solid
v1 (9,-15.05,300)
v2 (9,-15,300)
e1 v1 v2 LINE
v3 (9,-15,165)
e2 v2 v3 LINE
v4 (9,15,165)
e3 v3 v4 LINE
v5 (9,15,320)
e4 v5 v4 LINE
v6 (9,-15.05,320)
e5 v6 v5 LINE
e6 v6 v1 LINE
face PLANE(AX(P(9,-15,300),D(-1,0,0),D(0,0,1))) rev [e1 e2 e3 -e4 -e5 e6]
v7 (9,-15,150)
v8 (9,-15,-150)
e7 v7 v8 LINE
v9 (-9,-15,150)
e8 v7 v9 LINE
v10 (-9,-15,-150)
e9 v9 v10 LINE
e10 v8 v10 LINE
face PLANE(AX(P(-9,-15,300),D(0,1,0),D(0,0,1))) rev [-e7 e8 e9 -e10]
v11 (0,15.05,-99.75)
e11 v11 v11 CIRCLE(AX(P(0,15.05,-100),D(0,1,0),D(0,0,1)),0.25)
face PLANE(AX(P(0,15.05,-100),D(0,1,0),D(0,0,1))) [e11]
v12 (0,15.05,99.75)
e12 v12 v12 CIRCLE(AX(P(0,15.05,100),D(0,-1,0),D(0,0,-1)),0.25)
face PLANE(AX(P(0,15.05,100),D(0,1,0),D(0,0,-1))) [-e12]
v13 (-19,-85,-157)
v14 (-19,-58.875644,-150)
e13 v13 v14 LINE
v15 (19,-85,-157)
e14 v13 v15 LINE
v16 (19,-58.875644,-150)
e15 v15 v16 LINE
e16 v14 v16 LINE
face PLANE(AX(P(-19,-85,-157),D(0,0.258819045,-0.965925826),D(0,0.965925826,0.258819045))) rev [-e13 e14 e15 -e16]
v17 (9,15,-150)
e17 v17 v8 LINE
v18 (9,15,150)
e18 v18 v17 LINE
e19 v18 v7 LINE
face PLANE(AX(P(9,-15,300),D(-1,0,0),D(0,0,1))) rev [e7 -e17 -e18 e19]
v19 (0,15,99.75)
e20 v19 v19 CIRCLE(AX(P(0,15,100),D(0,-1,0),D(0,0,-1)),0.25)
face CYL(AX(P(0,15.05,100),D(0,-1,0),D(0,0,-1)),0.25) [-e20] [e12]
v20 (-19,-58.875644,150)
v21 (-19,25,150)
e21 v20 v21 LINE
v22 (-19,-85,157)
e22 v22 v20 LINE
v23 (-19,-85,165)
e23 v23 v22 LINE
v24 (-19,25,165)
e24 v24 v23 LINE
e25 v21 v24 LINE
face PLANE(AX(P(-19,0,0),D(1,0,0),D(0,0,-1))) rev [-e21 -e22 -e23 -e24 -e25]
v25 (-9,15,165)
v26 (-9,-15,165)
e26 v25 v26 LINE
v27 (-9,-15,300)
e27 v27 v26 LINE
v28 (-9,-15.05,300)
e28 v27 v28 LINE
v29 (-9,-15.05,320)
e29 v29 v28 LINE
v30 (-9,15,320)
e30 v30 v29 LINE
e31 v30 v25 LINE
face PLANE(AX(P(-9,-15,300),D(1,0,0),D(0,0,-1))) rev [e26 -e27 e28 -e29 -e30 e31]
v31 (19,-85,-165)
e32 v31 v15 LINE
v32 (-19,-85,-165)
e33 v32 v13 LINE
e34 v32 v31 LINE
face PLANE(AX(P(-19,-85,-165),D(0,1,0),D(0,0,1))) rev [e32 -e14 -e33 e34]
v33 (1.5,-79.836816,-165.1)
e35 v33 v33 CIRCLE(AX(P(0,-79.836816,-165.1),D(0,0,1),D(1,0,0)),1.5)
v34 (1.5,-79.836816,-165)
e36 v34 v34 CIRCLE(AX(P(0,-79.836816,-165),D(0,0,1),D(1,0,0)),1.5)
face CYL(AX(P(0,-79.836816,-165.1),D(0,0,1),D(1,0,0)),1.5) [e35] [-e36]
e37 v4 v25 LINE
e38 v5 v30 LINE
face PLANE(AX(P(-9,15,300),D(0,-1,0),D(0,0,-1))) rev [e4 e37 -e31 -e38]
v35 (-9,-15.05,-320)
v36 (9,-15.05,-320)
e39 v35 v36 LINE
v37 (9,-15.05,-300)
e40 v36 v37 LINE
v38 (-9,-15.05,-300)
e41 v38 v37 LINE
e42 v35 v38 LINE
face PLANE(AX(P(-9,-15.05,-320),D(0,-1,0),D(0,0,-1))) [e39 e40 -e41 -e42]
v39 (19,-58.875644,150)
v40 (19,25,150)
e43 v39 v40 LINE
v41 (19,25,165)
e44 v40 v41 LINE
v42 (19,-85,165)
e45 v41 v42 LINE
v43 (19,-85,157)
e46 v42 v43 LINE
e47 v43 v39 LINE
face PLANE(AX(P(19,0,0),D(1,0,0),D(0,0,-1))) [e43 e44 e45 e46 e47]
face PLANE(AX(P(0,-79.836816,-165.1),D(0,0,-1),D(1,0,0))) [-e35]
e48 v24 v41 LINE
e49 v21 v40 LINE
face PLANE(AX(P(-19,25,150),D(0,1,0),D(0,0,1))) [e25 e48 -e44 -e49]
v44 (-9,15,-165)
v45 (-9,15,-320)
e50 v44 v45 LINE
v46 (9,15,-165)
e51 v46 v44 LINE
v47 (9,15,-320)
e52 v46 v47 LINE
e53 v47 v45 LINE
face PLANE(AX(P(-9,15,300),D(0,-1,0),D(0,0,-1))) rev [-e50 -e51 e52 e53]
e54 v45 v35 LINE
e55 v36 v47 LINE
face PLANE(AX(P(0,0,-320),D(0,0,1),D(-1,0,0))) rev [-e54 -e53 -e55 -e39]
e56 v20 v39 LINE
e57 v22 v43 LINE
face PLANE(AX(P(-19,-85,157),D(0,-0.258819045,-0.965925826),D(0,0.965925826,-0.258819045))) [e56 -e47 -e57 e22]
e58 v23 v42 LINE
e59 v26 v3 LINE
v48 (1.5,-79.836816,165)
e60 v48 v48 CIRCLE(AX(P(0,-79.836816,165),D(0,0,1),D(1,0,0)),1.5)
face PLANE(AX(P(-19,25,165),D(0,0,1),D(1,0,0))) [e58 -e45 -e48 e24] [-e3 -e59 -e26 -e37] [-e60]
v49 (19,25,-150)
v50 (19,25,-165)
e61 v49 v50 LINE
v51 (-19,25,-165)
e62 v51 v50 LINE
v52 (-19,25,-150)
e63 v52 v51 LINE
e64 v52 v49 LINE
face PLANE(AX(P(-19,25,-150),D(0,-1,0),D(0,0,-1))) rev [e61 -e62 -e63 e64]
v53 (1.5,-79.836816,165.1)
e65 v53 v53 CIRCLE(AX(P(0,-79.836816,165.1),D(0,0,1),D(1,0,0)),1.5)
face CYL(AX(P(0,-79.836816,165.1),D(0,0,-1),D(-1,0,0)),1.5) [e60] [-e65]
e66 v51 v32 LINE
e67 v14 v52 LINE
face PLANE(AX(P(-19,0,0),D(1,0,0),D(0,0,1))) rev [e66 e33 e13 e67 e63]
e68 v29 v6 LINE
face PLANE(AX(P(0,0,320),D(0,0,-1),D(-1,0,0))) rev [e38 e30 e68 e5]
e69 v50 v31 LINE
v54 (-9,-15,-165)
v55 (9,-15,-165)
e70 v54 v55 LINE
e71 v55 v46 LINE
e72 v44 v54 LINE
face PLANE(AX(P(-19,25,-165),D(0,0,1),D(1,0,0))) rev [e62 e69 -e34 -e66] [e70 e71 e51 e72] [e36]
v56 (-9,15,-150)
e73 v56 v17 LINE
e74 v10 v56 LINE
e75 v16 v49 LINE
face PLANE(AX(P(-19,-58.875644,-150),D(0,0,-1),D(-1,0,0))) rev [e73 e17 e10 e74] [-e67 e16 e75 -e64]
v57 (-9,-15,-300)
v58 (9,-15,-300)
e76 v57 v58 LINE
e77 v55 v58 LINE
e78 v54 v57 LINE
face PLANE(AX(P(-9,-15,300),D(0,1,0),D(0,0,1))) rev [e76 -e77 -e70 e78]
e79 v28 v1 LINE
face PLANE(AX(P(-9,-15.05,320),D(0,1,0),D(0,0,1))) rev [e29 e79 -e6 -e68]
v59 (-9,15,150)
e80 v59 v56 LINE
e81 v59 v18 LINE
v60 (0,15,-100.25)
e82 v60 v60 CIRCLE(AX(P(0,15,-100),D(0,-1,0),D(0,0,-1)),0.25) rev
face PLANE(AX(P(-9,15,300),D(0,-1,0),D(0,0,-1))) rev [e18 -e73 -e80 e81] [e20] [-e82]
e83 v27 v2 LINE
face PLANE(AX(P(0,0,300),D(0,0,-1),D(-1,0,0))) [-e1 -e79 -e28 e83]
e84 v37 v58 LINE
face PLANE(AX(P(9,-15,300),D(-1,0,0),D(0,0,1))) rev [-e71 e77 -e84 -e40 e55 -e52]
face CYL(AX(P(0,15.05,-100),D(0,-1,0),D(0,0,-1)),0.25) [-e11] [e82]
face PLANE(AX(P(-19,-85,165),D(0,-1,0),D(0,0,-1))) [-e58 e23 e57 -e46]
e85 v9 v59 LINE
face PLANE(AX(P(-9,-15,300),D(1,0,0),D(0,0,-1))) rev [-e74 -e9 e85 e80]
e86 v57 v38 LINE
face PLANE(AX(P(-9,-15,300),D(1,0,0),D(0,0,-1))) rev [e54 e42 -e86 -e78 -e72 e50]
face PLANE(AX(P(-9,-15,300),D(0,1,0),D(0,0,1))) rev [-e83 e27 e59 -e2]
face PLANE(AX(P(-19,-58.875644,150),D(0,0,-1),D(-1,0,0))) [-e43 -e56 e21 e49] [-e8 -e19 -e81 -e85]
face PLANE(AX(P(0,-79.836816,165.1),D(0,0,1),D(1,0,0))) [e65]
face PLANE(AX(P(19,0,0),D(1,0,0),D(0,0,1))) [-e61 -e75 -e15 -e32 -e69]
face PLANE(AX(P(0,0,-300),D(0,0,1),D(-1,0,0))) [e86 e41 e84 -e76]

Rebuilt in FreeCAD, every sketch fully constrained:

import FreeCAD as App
import Part
import Sketcher

V = App.Vector
Q = App.Units.Quantity

doc = App.newDocument("Part")
body = doc.addObject("PartDesign::Body", "Body")

sketch1 = body.newObject("Sketcher::SketchObject", "Sketch")
sketch1.AttachmentSupport = (doc.getObject("XY_Plane"), [""])
sketch1.MapMode = "FlatFace"
sketch1.addGeometry(Part.LineSegment(V(-9, 15, 0), V(-9, -15, 0)), False)
sketch1.addGeometry(Part.LineSegment(V(-9, -15, 0), V(9, -15, 0)), False)
sketch1.addGeometry(Part.LineSegment(V(9, -15, 0), V(9, 15, 0)), False)
sketch1.addGeometry(Part.LineSegment(V(9, 15, 0), V(-9, 15, 0)), False)
sketch1.addConstraint(Sketcher.Constraint("Coincident", 0, 2, 1, 1))
sketch1.addConstraint(Sketcher.Constraint("Coincident", 1, 2, 2, 1))
sketch1.addConstraint(Sketcher.Constraint("Coincident", 2, 2, 3, 1))
sketch1.addConstraint(Sketcher.Constraint("Coincident", 3, 2, 0, 1))
sketch1.addConstraint(Sketcher.Constraint("Vertical", 0))
sketch1.addConstraint(Sketcher.Constraint("Horizontal", 1))
sketch1.addConstraint(Sketcher.Constraint("Vertical", 2))
sketch1.addConstraint(Sketcher.Constraint("Horizontal", 3))
sketch1.addConstraint(Sketcher.Constraint("Symmetric", 0, 2, 2, 2, -1, 1))
sketch1.addConstraint(Sketcher.Constraint("DistanceX", 1, 1, 1, 2, Q("18 mm")))
sketch1.addConstraint(Sketcher.Constraint("DistanceY", 0, 2, 0, 1, Q("30 mm")))
pad1 = body.newObject("PartDesign::Pad", "Pad")
pad1.Profile = sketch1
pad1.Length = 600
pad1.Midplane = True

sketch2 = body.newObject("Sketcher::SketchObject", "Sketch001")
sketch2.AttachmentSupport = (doc.getObject("XY_Plane"), [""])
sketch2.MapMode = "FlatFace"
sketch2.AttachmentOffset = App.Placement(V(0, 0, 300), App.Rotation())
sketch2.addGeometry(Part.LineSegment(V(-9, -15, 0), V(9, -15, 0)), False)
sketch2.addGeometry(Part.LineSegment(V(9, -15, 0), V(9, 15, 0)), False)
sketch2.addGeometry(Part.LineSegment(V(9, 15, 0), V(-9, 15, 0)), False)
sketch2.addGeometry(Part.LineSegment(V(-9, 15, 0), V(-9, -15, 0)), False)
sketch2.addConstraint(Sketcher.Constraint("Coincident", 0, 2, 1, 1))
sketch2.addConstraint(Sketcher.Constraint("Coincident", 1, 2, 2, 1))
sketch2.addConstraint(Sketcher.Constraint("Coincident", 2, 2, 3, 1))
sketch2.addConstraint(Sketcher.Constraint("Coincident", 3, 2, 0, 1))
sketch2.addConstraint(Sketcher.Constraint("Horizontal", 0))
sketch2.addConstraint(Sketcher.Constraint("Vertical", 1))
sketch2.addConstraint(Sketcher.Constraint("Horizontal", 2))
sketch2.addConstraint(Sketcher.Constraint("Vertical", 3))
sketch2.addConstraint(Sketcher.Constraint("DistanceX", 0, 1, 0, 2, Q("18 mm")))
sketch2.addConstraint(Sketcher.Constraint("DistanceX", -1, 1, 0, 2, Q("9 mm")))
sketch2.addConstraint(Sketcher.Constraint("DistanceY", -1, 1, 1, 2, Q("15 mm")))
sketch2.addConstraint(Sketcher.Constraint("DistanceY", 1, 1, 1, 2, Q("30.05 mm")))
pad2 = body.newObject("PartDesign::Pad", "Pad001")
pad2.Profile = sketch2
pad2.Length = 20
doc.recompute()

mirrored = body.newObject("PartDesign::Mirrored", "Mirrored")
mirrored.Originals = [pad2]
mirrored.MirrorPlane = (doc.getObject("XY_Plane"), [""])
body.Tip = mirrored

sketch3 = body.newObject("Sketcher::SketchObject", "Sketch002")
sketch3.AttachmentSupport = (doc.getObject("YZ_Plane"), [""])
sketch3.MapMode = "FlatFace"
sketch3.AttachmentOffset = App.Placement(V(0, 0, 19), App.Rotation())
sketch3.addGeometry(Part.LineSegment(V(25, 165, 0), V(-85, 165, 0)), False)
sketch3.addGeometry(Part.LineSegment(V(-85, 165, 0), V(-85, 157, 0)), False)
sketch3.addGeometry(Part.LineSegment(V(-85, 157, 0), V(-59, 150, 0)), False)
sketch3.addGeometry(Part.LineSegment(V(-59, 150, 0), V(25, 150, 0)), False)
sketch3.addGeometry(Part.LineSegment(V(25, 150, 0), V(25, 165, 0)), False)
sketch3.addConstraint(Sketcher.Constraint("Coincident", 0, 2, 1, 1))
sketch3.addConstraint(Sketcher.Constraint("Coincident", 1, 2, 2, 1))
sketch3.addConstraint(Sketcher.Constraint("Coincident", 2, 2, 3, 1))
sketch3.addConstraint(Sketcher.Constraint("Coincident", 3, 2, 4, 1))
sketch3.addConstraint(Sketcher.Constraint("Coincident", 4, 2, 0, 1))
sketch3.addConstraint(Sketcher.Constraint("Horizontal", 0))
sketch3.addConstraint(Sketcher.Constraint("Vertical", 1))
sketch3.addConstraint(Sketcher.Constraint("Horizontal", 3))
sketch3.addConstraint(Sketcher.Constraint("Vertical", 4))
sketch3.addConstraint(Sketcher.Constraint("DistanceX", 0, 2, 0, 1, Q("110 mm")))
sketch3.addConstraint(Sketcher.Constraint("DistanceY", 1, 2, 1, 1, Q("8 mm")))
sketch3.addConstraint(Sketcher.Constraint("DistanceY", 4, 1, 4, 2, Q("15 mm")))
sketch3.addConstraint(Sketcher.Constraint("Angle", 2, Q("-15 deg")))
sketch3.addConstraint(Sketcher.Constraint("DistanceX", 0, 2, -1, 1, Q("85 mm")))
sketch3.addConstraint(Sketcher.Constraint("DistanceY", -1, 1, 0, 2, Q("165 mm")))
pad3 = body.newObject("PartDesign::Pad", "Pad002")
pad3.Profile = sketch3
pad3.Length = 38
pad3.Reversed = True
doc.recompute()

mirrored2 = body.newObject("PartDesign::Mirrored", "Mirrored001")
mirrored2.Originals = [pad3]
mirrored2.MirrorPlane = (doc.getObject("XY_Plane"), [""])
body.Tip = mirrored2

sketch4 = body.newObject("Sketcher::SketchObject", "Sketch003")
sketch4.AttachmentSupport = (doc.getObject("XZ_Plane"), [""])
sketch4.MapMode = "FlatFace"
sketch4.AttachmentOffset = App.Placement(V(0, 0, -15), App.Rotation())
sketch4.addGeometry(Part.Circle(V(0, -100, 0), V(0, 0, 1), 0.25), False)
sketch4.addConstraint(Sketcher.Constraint("PointOnObject", 0, 3, -2))
sketch4.addConstraint(Sketcher.Constraint("Diameter", 0, Q("0.5 mm")))
sketch4.addConstraint(Sketcher.Constraint("DistanceY", 0, 3, -1, 1, Q("100 mm")))
pad4 = body.newObject("PartDesign::Pad", "Pad003")
pad4.Profile = sketch4
pad4.Length = 0.05
pad4.Reversed = True
doc.recompute()

mirrored3 = body.newObject("PartDesign::Mirrored", "Mirrored002")
mirrored3.Originals = [pad4]
mirrored3.MirrorPlane = (doc.getObject("XY_Plane"), [""])
body.Tip = mirrored3

sketch5 = body.newObject("Sketcher::SketchObject", "Sketch004")
sketch5.AttachmentSupport = (doc.getObject("XY_Plane"), [""])
sketch5.MapMode = "FlatFace"
sketch5.AttachmentOffset = App.Placement(V(0, 0, 165), App.Rotation())
sketch5.addGeometry(Part.Circle(V(0, -79.8, 0), V(0, 0, 1), 1.5), False)
sketch5.addConstraint(Sketcher.Constraint("PointOnObject", 0, 3, -2))
sketch5.addConstraint(Sketcher.Constraint("Diameter", 0, Q("3 mm")))
sketch5.addConstraint(Sketcher.Constraint("DistanceY", 0, 3, -1, 1, Q("79.836816 mm")))
pad5 = body.newObject("PartDesign::Pad", "Pad004")
pad5.Profile = sketch5
pad5.Length = 0.1
doc.recompute()

mirrored4 = body.newObject("PartDesign::Mirrored", "Mirrored003")
mirrored4.Originals = [pad5]
mirrored4.MirrorPlane = (doc.getObject("XY_Plane"), [""])
body.Tip = mirrored4

doc.recompute()
